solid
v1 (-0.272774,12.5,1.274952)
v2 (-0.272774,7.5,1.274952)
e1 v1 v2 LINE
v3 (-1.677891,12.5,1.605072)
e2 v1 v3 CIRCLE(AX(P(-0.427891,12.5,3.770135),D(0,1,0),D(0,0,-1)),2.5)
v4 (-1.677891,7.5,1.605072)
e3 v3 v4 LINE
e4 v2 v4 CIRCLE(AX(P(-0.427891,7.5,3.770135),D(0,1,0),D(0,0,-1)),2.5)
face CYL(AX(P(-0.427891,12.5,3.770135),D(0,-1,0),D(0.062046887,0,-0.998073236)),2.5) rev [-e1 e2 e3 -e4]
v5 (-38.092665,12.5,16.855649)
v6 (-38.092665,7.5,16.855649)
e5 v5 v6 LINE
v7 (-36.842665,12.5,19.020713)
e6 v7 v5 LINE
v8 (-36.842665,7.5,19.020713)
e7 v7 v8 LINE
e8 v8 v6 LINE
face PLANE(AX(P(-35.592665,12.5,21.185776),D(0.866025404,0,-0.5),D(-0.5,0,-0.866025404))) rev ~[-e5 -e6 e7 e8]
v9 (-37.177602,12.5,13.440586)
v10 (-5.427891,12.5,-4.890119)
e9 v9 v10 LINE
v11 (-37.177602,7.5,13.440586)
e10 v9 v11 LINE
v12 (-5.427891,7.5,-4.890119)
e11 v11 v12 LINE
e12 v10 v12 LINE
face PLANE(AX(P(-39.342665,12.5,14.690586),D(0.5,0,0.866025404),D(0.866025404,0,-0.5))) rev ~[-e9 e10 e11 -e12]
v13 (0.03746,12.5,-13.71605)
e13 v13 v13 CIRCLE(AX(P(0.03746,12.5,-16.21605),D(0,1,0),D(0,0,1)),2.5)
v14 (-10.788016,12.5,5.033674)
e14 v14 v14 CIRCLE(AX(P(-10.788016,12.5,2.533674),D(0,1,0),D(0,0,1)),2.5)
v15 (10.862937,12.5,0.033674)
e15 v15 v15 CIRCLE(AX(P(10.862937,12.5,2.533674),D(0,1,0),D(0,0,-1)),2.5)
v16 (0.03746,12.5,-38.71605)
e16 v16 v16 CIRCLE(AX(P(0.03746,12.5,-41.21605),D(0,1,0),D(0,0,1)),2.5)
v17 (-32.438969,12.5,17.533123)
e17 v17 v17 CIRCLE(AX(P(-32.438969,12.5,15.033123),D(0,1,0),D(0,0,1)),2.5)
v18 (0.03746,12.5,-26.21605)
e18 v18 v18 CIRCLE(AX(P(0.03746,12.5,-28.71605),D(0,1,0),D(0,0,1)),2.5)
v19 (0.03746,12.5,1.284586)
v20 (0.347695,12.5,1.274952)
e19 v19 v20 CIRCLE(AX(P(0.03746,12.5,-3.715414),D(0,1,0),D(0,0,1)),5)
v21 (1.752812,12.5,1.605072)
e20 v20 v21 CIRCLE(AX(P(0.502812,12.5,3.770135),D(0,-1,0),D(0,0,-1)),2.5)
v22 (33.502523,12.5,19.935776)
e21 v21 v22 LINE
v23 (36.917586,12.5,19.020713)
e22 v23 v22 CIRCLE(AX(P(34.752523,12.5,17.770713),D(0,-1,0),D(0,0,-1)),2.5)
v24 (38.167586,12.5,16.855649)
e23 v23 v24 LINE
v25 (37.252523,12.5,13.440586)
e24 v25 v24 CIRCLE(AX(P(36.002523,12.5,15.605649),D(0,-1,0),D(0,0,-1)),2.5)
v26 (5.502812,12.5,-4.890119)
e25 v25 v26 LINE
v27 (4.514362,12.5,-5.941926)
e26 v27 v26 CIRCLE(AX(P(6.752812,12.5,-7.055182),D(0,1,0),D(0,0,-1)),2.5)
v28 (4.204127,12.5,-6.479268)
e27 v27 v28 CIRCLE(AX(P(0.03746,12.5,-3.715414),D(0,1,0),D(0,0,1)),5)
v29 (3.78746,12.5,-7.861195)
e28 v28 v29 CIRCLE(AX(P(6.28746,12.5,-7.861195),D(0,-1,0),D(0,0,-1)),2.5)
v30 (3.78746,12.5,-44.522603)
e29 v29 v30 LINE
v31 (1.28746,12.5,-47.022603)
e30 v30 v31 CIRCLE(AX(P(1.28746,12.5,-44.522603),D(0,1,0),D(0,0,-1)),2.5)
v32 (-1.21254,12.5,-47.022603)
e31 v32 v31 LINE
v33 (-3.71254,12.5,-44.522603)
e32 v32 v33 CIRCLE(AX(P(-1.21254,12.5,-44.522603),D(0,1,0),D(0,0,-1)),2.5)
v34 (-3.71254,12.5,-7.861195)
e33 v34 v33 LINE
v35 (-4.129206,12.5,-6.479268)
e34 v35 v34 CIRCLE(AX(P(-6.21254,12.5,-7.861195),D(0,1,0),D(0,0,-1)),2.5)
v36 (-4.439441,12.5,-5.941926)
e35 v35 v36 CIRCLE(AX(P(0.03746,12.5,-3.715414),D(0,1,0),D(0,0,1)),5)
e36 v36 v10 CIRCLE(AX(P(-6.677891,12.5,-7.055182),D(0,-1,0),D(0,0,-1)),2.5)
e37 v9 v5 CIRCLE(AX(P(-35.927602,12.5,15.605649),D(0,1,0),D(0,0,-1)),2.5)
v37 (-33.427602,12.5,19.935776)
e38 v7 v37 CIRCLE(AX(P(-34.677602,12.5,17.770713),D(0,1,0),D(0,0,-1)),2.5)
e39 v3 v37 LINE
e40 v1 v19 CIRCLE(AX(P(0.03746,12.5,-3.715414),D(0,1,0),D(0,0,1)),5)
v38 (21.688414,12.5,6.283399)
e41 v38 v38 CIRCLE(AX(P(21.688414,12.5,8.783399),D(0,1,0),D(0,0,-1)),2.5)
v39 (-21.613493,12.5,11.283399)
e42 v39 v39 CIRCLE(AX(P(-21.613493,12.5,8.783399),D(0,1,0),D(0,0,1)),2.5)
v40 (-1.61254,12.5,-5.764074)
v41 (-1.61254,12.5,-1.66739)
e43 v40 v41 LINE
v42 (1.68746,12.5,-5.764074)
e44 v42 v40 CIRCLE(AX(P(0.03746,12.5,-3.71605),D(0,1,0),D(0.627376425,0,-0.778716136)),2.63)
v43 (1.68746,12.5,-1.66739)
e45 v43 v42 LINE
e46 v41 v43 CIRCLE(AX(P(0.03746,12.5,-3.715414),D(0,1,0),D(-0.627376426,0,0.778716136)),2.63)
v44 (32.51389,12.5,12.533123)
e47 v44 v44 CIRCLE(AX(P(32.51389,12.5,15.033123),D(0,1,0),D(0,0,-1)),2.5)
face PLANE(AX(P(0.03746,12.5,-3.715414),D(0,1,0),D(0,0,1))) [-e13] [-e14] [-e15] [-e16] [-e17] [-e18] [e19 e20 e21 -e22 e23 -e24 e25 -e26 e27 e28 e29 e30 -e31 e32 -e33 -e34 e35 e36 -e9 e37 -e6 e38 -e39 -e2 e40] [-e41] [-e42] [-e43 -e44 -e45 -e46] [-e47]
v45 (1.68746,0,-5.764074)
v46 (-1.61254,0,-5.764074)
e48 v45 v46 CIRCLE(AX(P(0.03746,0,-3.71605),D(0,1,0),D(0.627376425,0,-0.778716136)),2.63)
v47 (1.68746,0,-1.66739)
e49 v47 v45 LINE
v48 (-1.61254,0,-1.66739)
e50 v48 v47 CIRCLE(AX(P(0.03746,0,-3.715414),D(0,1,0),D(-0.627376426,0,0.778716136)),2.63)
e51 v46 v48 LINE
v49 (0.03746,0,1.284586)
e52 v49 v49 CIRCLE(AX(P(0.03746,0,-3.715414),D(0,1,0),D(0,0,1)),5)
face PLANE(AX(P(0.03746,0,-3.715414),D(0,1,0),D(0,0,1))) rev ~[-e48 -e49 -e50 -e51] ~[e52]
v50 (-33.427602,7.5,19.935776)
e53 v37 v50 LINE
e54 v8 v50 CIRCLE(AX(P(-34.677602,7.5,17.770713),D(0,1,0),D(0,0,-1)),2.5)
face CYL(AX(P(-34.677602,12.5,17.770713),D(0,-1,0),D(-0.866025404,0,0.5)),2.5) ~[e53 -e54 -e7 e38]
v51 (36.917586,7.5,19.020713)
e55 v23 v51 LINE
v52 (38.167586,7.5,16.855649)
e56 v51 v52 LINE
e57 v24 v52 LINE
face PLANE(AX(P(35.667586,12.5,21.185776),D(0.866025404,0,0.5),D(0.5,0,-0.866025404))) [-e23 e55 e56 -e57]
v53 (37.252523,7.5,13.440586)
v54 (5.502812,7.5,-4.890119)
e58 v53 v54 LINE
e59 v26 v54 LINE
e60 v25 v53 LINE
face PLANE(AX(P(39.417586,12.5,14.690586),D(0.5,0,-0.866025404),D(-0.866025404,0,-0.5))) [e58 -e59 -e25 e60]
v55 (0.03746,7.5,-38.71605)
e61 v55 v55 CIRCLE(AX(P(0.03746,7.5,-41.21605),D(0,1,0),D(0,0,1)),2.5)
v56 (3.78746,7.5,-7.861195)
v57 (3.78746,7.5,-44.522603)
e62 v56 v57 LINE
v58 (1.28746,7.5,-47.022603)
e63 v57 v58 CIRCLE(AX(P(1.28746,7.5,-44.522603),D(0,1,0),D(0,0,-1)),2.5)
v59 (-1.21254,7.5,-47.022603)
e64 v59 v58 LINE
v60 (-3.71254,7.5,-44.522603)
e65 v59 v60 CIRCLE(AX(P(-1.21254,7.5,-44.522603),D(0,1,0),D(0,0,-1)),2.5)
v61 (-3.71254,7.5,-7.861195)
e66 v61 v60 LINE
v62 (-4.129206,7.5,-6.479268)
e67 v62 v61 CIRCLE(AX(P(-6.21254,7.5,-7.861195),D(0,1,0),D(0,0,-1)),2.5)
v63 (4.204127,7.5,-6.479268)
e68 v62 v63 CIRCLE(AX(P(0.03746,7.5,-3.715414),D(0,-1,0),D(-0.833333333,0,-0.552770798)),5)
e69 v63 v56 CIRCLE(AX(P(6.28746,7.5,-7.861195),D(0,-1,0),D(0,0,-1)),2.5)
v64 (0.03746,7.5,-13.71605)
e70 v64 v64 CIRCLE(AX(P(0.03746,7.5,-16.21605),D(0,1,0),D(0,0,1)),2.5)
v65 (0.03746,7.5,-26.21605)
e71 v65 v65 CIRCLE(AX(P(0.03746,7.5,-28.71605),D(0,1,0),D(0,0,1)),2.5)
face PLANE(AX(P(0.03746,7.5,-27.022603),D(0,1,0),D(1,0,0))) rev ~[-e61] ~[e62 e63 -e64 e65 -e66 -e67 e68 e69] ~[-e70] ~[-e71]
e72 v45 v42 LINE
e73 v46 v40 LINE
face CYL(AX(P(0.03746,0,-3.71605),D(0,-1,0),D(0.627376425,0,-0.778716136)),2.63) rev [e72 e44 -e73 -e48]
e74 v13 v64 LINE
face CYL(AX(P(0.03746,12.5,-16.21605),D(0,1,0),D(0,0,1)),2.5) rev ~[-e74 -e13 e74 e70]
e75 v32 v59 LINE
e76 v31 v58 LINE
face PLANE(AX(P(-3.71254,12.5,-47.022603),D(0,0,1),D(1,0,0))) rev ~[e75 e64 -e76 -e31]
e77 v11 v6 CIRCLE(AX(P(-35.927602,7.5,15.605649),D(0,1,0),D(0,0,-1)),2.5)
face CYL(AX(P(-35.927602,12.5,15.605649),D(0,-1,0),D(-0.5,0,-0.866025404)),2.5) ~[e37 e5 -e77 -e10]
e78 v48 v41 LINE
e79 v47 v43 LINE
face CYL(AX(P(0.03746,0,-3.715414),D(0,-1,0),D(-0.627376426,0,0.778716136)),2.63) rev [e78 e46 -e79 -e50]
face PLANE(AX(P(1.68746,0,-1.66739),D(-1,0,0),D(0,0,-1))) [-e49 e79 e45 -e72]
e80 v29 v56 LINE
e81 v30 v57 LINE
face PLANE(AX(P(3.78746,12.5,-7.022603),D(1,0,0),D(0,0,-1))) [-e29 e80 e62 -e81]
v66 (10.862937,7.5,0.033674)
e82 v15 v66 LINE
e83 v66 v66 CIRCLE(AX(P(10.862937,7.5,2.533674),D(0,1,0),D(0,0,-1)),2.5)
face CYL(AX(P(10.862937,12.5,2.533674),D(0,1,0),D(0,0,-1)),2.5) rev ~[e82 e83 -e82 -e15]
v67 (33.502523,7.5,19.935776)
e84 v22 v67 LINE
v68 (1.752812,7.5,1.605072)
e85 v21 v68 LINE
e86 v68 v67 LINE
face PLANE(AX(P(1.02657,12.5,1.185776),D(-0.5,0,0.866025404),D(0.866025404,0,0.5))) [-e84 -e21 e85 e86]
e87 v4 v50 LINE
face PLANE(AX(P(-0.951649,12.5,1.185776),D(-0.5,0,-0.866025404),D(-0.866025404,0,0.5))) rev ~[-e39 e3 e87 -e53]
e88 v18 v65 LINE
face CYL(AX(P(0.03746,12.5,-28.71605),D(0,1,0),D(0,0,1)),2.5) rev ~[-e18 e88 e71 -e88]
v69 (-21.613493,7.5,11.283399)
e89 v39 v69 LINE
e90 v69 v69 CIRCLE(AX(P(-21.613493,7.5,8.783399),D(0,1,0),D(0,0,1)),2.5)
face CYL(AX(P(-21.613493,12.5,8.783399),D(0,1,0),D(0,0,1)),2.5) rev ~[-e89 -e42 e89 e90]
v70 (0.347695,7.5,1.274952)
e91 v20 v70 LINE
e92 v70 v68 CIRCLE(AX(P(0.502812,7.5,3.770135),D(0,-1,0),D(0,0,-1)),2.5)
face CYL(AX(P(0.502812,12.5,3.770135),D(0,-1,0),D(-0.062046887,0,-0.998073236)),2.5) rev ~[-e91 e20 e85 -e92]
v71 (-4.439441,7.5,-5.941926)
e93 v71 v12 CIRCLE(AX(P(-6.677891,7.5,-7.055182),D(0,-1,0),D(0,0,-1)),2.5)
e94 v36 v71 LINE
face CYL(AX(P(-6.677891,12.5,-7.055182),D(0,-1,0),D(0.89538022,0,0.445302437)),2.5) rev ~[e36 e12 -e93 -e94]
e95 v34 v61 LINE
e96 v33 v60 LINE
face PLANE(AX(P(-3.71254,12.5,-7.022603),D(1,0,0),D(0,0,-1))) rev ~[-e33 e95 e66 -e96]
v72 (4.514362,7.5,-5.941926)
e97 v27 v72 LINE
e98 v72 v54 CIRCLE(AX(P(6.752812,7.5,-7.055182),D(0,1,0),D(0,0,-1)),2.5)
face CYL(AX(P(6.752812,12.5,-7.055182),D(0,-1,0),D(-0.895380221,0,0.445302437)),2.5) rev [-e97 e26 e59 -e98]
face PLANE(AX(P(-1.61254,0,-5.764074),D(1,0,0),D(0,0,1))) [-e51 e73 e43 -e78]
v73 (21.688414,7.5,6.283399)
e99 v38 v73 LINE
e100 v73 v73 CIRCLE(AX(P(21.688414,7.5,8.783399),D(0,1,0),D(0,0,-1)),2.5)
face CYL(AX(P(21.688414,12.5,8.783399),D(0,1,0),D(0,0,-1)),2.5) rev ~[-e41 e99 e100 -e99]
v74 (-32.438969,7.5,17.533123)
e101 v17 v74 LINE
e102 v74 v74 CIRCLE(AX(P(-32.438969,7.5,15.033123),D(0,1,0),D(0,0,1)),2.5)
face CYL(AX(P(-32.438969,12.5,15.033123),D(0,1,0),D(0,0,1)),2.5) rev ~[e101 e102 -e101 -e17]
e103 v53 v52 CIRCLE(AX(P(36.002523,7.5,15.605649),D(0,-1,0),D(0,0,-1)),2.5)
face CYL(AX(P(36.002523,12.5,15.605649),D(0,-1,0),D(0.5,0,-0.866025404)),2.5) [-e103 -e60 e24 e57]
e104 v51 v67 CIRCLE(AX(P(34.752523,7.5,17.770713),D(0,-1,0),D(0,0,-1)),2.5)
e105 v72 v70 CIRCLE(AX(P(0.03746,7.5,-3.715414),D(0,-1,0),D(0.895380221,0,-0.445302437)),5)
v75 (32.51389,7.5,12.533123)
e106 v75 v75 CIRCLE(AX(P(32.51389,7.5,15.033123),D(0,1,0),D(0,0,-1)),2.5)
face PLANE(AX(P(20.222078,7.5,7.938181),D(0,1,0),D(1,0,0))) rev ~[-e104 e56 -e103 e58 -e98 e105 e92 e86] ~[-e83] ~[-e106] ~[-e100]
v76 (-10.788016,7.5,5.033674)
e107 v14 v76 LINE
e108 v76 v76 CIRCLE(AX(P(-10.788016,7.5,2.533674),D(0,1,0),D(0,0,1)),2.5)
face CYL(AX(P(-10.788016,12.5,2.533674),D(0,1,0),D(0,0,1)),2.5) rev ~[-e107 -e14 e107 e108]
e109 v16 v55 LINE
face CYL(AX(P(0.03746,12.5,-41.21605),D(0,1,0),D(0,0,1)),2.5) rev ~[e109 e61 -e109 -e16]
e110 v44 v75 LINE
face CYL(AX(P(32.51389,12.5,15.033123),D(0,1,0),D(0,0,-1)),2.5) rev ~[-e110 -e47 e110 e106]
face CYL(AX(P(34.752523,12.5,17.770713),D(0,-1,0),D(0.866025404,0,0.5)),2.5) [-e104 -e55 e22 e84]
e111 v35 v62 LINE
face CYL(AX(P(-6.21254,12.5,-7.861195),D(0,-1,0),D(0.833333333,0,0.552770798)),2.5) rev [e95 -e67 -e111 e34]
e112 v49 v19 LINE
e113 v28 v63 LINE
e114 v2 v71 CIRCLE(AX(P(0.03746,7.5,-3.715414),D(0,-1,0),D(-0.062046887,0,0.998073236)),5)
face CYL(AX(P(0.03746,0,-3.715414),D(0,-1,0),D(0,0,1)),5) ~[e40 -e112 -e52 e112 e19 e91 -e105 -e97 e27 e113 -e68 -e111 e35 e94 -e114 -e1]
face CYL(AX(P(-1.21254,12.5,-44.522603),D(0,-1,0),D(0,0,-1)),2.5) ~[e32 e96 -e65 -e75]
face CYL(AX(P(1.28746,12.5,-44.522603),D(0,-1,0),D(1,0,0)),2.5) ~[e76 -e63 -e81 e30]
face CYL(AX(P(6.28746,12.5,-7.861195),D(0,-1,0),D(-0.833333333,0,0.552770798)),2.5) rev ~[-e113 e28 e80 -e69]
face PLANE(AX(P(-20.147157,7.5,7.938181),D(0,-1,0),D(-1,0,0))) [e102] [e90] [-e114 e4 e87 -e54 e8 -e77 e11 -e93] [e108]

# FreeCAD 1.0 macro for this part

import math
import FreeCAD as App
import Part
import Sketcher
Q = App.Units.Quantity


def edges_at(feature, points):
    """Names of the edges that pass closest to the given points."""
    edges = feature.Shape.Edges
    near = lambda p: min(range(len(edges)), key=lambda i: edges[i].distToShape(Part.Vertex(*p))[0])
    return sorted({f"Edge{near(p) + 1}" for p in points})


def add_polygon(sketch, points):
    """Adds a closed chain of lines whose ends are joined by coincident constraints."""
    first, n = sketch.GeometryCount, len(points)
    for a, b in zip(points, points[1:] + points[:1]):
        sketch.addGeometry(Part.LineSegment(App.Vector(*a, 0), App.Vector(*b, 0)), False)
    for i in range(n):
        sketch.addConstraint(Sketcher.Constraint("Coincident", first + i, 2, first + (i + 1) % n, 1))

doc = App.newDocument("Part")
body = doc.addObject("PartDesign::Body", "Body")

sketch1 = doc.addObject("Sketcher::SketchObject", "Sketch")
body.addObject(sketch1)
sketch1.AttachmentSupport = (doc.XZ_Plane, [""])
sketch1.MapMode = "FlatFace"
sketch1.addGeometry(Part.Circle(App.Vector(0, -3.7, 0), App.Vector(0, 0, 1), 5), False)
sketch1.addGeometry(Part.ArcOfCircle(Part.Circle(App.Vector(0, -3.7, 0), App.Vector(0, 0, 1), 2.6), math.radians(51), math.radians(129)), False)
sketch1.addGeometry(Part.LineSegment(App.Vector(-1.6, -1.7, 0), App.Vector(-1.6, -5.8, 0)), False)
sketch1.addGeometry(Part.ArcOfCircle(Part.Circle(App.Vector(0, -3.7, 0), App.Vector(0, 0, 1), 2.6), math.radians(-129), math.radians(-51)), False)
sketch1.addGeometry(Part.LineSegment(App.Vector(1.7, -5.8, 0), App.Vector(1.7, -1.7, 0)), False)
sketch1.addConstraint(Sketcher.Constraint("Coincident", 1, 2, 2, 1))
sketch1.addConstraint(Sketcher.Constraint("Coincident", 2, 2, 3, 1))
sketch1.addConstraint(Sketcher.Constraint("Coincident", 3, 2, 4, 1))
sketch1.addConstraint(Sketcher.Constraint("Coincident", 4, 2, 1, 1))
sketch1.addConstraint(Sketcher.Constraint("Vertical", 2))
sketch1.addConstraint(Sketcher.Constraint("Vertical", 4))
sketch1.addConstraint(Sketcher.Constraint("Coincident", 1, 3, 0, 3))
sketch1.addConstraint(Sketcher.Constraint("Equal", 1, 3))
sketch1.addConstraint(Sketcher.Constraint("Horizontal", 2, 2, 3, 2))
sketch1.addConstraint(Sketcher.Constraint("Horizontal", 1, 2, 4, 2))
sketch1.addConstraint(Sketcher.Constraint("Diameter", 0, Q("10 mm")))
sketch1.addConstraint(Sketcher.Constraint("Radius", 1, Q("2.63 mm")))
sketch1.addConstraint(Sketcher.Constraint("DistanceX", 2, 2, 3, 2, Q("3.3 mm")))
sketch1.addConstraint(Sketcher.Constraint("DistanceY", 2, 2, 2, 1, Q("4.096683 mm")))
sketch1.addConstraint(Sketcher.Constraint("DistanceX", -1, 1, 0, 3, Q("0.03746 mm")))
sketch1.addConstraint(Sketcher.Constraint("DistanceY", 3, 3, -1, 1, Q("3.71605 mm")))
pad1 = doc.addObject("PartDesign::Pad", "Pad")
body.addObject(pad1)
pad1.Profile = sketch1
pad1.Length = 12.5
pad1.Reversed = True

sketch2 = doc.addObject("Sketcher::SketchObject", "Sketch001")
body.addObject(sketch2)
sketch2.AttachmentSupport = (doc.XZ_Plane, [""])
sketch2.MapMode = "FlatFace"
sketch2.AttachmentOffset = App.Placement(App.Vector(0, 0, -12.5), App.Rotation())
add_polygon(sketch2, [(5, -5), (1, 1), (36, 21), (39, 15)])
add_polygon(sketch2, [(-4, -47), (-4, -7), (4, -7), (4, -47)])
add_polygon(sketch2, [(-1, 1), (-5, -5), (-39, 15), (-36, 21)])
sketch2.addConstraint(Sketcher.Constraint("Vertical", 4))
sketch2.addConstraint(Sketcher.Constraint("Horizontal", 5))
sketch2.addConstraint(Sketcher.Constraint("Vertical", 6))
sketch2.addConstraint(Sketcher.Constraint("Horizontal", 7))
sketch2.addConstraint(Sketcher.Constraint("Perpendicular", 0, 1))
sketch2.addConstraint(Sketcher.Constraint("Perpendicular", 1, 2))
sketch2.addConstraint(Sketcher.Constraint("Perpendicular", 2, 3))
sketch2.addConstraint(Sketcher.Constraint("Perpendicular", 8, 9))
sketch2.addConstraint(Sketcher.Constraint("Perpendicular", 9, 10))
sketch2.addConstraint(Sketcher.Constraint("Perpendicular", 10, 11))
sketch2.addConstraint(Sketcher.Constraint("Horizontal", 3, 2, 8, 2))
sketch2.addConstraint(Sketcher.Constraint("Horizontal", 2, 2, 9, 2))
sketch2.addConstraint(Sketcher.Constraint("Horizontal", 1, 2, 10, 2))
sketch2.addConstraint(Sketcher.Constraint("Equal", 2, 8))
sketch2.addConstraint(Sketcher.Constraint("DistanceY", 4, 1, 4, 2, Q("40 mm")))
sketch2.addConstraint(Sketcher.Constraint("Angle", 0, Q("120 deg")))
sketch2.addConstraint(Sketcher.Constraint("Distance", 1, Q("40 mm")))
sketch2.addConstraint(Sketcher.Constraint("DistanceX", 5, 1, 5, 2, Q("7.5 mm")))
sketch2.addConstraint(Sketcher.Constraint("Distance", 0, Q("7.5 mm")))
sketch2.addConstraint(Sketcher.Constraint("DistanceX", -1, 1, 0, 2, Q("1.02657 mm")))
sketch2.addConstraint(Sketcher.Constraint("DistanceX", 4, 2, -1, 1, Q("3.71254 mm")))
sketch2.addConstraint(Sketcher.Constraint("DistanceX", 8, 2, -1, 1, Q("4.701649 mm")))
sketch2.addConstraint(Sketcher.Constraint("DistanceY", 4, 2, 3, 2, Q("1.713188 mm")))
sketch2.addConstraint(Sketcher.Constraint("DistanceY", -1, 1, 0, 2, Q("1.185776 mm")))
pad2 = doc.addObject("PartDesign::Pad", "Pad001")
body.addObject(pad2)
pad2.Profile = sketch2
pad2.Length = 5

sketch3 = doc.addObject("Sketcher::SketchObject", "Sketch002")
body.addObject(sketch3)
sketch3.AttachmentSupport = (doc.XZ_Plane, [""])
sketch3.MapMode = "FlatFace"
sketch3.AttachmentOffset = App.Placement(App.Vector(0, 0, -12.5), App.Rotation())
sketch3.addGeometry(Part.Circle(App.Vector(0, -16.2, 0), App.Vector(0, 0, 1), 2.5), False)
sketch3.addGeometry(Part.Circle(App.Vector(0, -28.7, 0), App.Vector(0, 0, 1), 2.5), False)
sketch3.addGeometry(Part.Circle(App.Vector(0, -41.2, 0), App.Vector(0, 0, 1), 2.5), False)
sketch3.addGeometry(Part.Circle(App.Vector(-10.8, 2.5, 0), App.Vector(0, 0, 1), 2.5), False)
sketch3.addGeometry(Part.Circle(App.Vector(-21.6, 8.8, 0), App.Vector(0, 0, 1), 2.5), False)
sketch3.addGeometry(Part.Circle(App.Vector(-32.4, 15, 0), App.Vector(0, 0, 1), 2.5), False)
sketch3.addGeometry(Part.Circle(App.Vector(10.9, 2.5, 0), App.Vector(0, 0, 1), 2.5), False)
sketch3.addGeometry(Part.Circle(App.Vector(21.7, 8.8, 0), App.Vector(0, 0, 1), 2.5), False)
sketch3.addGeometry(Part.Circle(App.Vector(32.5, 15, 0), App.Vector(0, 0, 1), 2.5), False)
sketch3.addConstraint(Sketcher.Constraint("Equal", 0, 1))
sketch3.addConstraint(Sketcher.Constraint("Equal", 1, 2))
sketch3.addConstraint(Sketcher.Constraint("Equal", 2, 3))
sketch3.addConstraint(Sketcher.Constraint("Equal", 3, 4))
sketch3.addConstraint(Sketcher.Constraint("Equal", 4, 5))
sketch3.addConstraint(Sketcher.Constraint("Equal", 5, 6))
sketch3.addConstraint(Sketcher.Constraint("Equal", 6, 7))
sketch3.addConstraint(Sketcher.Constraint("Equal", 7, 8))
sketch3.addConstraint(Sketcher.Constraint("Horizontal", 3, 3, 6, 3))
sketch3.addConstraint(Sketcher.Constraint("Horizontal", 4, 3, 7, 3))
sketch3.addConstraint(Sketcher.Constraint("Horizontal", 5, 3, 8, 3))
sketch3.addConstraint(Sketcher.Constraint("Vertical", 0, 3, 1, 3))
sketch3.addConstraint(Sketcher.Constraint("Vertical", 1, 3, 2, 3))
sketch3.addConstraint(Sketcher.Constraint("Diameter", 0, Q("5 mm")))
sketch3.addConstraint(Sketcher.Constraint("DistanceY", 2, 3, 0, 3, Q("25 mm")))
sketch3.addConstraint(Sketcher.Constraint("DistanceY", 1, 3, 0, 3, Q("12.5 mm")))
sketch3.addConstraint(Sketcher.Constraint("DistanceY", -1, 1, 4, 3, Q("8.783399 mm")))
sketch3.addConstraint(Sketcher.Constraint("DistanceX", -1, 1, 0, 3, Q("0.03746 mm")))
sketch3.addConstraint(Sketcher.Constraint("DistanceY", 0, 3, -1, 1, Q("16.21605 mm")))
sketch3.addConstraint(Sketcher.Constraint("DistanceX", 5, 3, -1, 1, Q("32.438969 mm")))
sketch3.addConstraint(Sketcher.Constraint("DistanceX", -1, 1, 8, 3, Q("32.51389 mm")))
sketch3.addConstraint(Sketcher.Constraint("DistanceY", 3, 3, 5, 3, Q("12.499449 mm")))
sketch3.addConstraint(Sketcher.Constraint("DistanceX", 4, 3, 6, 3, Q("32.47643 mm")))
sketch3.addConstraint(Sketcher.Constraint("DistanceX", 3, 3, 7, 3, Q("32.47643 mm")))
sketch3.addConstraint(Sketcher.Constraint("DistanceX", 3, 3, -1, 1, Q("10.788016 mm")))
sketch3.addConstraint(Sketcher.Constraint("DistanceY", -1, 1, 3, 3, Q("2.533674 mm")))
sketch3.addConstraint(Sketcher.Constraint("DistanceX", 4, 3, -1, 1, Q("21.613493 mm")))
pocket1 = doc.addObject("PartDesign::Pocket", "Pocket")
body.addObject(pocket1)
pocket1.Profile = sketch3
pocket1.Length = 100
pocket1.Reversed = True
doc.recompute()

fillet = doc.addObject("PartDesign::Fillet", "Fillet")
body.addObject(fillet)
fillet.Base = (pocket1, edges_at(pocket1, [
    (4.777, 10, -5.309),
    (1.027, 10, 1.186),
    (-3.713, 10, -7.023),
    (3.787, 10, -7.023),
    (-4.702, 10, -5.309),
    (-0.952, 10, 1.186),
]))
fillet.Radius = 2.5
doc.recompute()

fillet2 = doc.addObject("PartDesign::Fillet", "Fillet001")
body.addObject(fillet2)
fillet2.Base = (fillet, edges_at(fillet, [
    (39.418, 10, 14.691),
    (35.668, 10, 21.186),
    (-3.713, 10, -47.023),
    (3.787, 10, -47.023),
    (-39.343, 10, 14.691),
    (-35.593, 10, 21.186),
]))
fillet2.Radius = 2.5

doc.recompute()
